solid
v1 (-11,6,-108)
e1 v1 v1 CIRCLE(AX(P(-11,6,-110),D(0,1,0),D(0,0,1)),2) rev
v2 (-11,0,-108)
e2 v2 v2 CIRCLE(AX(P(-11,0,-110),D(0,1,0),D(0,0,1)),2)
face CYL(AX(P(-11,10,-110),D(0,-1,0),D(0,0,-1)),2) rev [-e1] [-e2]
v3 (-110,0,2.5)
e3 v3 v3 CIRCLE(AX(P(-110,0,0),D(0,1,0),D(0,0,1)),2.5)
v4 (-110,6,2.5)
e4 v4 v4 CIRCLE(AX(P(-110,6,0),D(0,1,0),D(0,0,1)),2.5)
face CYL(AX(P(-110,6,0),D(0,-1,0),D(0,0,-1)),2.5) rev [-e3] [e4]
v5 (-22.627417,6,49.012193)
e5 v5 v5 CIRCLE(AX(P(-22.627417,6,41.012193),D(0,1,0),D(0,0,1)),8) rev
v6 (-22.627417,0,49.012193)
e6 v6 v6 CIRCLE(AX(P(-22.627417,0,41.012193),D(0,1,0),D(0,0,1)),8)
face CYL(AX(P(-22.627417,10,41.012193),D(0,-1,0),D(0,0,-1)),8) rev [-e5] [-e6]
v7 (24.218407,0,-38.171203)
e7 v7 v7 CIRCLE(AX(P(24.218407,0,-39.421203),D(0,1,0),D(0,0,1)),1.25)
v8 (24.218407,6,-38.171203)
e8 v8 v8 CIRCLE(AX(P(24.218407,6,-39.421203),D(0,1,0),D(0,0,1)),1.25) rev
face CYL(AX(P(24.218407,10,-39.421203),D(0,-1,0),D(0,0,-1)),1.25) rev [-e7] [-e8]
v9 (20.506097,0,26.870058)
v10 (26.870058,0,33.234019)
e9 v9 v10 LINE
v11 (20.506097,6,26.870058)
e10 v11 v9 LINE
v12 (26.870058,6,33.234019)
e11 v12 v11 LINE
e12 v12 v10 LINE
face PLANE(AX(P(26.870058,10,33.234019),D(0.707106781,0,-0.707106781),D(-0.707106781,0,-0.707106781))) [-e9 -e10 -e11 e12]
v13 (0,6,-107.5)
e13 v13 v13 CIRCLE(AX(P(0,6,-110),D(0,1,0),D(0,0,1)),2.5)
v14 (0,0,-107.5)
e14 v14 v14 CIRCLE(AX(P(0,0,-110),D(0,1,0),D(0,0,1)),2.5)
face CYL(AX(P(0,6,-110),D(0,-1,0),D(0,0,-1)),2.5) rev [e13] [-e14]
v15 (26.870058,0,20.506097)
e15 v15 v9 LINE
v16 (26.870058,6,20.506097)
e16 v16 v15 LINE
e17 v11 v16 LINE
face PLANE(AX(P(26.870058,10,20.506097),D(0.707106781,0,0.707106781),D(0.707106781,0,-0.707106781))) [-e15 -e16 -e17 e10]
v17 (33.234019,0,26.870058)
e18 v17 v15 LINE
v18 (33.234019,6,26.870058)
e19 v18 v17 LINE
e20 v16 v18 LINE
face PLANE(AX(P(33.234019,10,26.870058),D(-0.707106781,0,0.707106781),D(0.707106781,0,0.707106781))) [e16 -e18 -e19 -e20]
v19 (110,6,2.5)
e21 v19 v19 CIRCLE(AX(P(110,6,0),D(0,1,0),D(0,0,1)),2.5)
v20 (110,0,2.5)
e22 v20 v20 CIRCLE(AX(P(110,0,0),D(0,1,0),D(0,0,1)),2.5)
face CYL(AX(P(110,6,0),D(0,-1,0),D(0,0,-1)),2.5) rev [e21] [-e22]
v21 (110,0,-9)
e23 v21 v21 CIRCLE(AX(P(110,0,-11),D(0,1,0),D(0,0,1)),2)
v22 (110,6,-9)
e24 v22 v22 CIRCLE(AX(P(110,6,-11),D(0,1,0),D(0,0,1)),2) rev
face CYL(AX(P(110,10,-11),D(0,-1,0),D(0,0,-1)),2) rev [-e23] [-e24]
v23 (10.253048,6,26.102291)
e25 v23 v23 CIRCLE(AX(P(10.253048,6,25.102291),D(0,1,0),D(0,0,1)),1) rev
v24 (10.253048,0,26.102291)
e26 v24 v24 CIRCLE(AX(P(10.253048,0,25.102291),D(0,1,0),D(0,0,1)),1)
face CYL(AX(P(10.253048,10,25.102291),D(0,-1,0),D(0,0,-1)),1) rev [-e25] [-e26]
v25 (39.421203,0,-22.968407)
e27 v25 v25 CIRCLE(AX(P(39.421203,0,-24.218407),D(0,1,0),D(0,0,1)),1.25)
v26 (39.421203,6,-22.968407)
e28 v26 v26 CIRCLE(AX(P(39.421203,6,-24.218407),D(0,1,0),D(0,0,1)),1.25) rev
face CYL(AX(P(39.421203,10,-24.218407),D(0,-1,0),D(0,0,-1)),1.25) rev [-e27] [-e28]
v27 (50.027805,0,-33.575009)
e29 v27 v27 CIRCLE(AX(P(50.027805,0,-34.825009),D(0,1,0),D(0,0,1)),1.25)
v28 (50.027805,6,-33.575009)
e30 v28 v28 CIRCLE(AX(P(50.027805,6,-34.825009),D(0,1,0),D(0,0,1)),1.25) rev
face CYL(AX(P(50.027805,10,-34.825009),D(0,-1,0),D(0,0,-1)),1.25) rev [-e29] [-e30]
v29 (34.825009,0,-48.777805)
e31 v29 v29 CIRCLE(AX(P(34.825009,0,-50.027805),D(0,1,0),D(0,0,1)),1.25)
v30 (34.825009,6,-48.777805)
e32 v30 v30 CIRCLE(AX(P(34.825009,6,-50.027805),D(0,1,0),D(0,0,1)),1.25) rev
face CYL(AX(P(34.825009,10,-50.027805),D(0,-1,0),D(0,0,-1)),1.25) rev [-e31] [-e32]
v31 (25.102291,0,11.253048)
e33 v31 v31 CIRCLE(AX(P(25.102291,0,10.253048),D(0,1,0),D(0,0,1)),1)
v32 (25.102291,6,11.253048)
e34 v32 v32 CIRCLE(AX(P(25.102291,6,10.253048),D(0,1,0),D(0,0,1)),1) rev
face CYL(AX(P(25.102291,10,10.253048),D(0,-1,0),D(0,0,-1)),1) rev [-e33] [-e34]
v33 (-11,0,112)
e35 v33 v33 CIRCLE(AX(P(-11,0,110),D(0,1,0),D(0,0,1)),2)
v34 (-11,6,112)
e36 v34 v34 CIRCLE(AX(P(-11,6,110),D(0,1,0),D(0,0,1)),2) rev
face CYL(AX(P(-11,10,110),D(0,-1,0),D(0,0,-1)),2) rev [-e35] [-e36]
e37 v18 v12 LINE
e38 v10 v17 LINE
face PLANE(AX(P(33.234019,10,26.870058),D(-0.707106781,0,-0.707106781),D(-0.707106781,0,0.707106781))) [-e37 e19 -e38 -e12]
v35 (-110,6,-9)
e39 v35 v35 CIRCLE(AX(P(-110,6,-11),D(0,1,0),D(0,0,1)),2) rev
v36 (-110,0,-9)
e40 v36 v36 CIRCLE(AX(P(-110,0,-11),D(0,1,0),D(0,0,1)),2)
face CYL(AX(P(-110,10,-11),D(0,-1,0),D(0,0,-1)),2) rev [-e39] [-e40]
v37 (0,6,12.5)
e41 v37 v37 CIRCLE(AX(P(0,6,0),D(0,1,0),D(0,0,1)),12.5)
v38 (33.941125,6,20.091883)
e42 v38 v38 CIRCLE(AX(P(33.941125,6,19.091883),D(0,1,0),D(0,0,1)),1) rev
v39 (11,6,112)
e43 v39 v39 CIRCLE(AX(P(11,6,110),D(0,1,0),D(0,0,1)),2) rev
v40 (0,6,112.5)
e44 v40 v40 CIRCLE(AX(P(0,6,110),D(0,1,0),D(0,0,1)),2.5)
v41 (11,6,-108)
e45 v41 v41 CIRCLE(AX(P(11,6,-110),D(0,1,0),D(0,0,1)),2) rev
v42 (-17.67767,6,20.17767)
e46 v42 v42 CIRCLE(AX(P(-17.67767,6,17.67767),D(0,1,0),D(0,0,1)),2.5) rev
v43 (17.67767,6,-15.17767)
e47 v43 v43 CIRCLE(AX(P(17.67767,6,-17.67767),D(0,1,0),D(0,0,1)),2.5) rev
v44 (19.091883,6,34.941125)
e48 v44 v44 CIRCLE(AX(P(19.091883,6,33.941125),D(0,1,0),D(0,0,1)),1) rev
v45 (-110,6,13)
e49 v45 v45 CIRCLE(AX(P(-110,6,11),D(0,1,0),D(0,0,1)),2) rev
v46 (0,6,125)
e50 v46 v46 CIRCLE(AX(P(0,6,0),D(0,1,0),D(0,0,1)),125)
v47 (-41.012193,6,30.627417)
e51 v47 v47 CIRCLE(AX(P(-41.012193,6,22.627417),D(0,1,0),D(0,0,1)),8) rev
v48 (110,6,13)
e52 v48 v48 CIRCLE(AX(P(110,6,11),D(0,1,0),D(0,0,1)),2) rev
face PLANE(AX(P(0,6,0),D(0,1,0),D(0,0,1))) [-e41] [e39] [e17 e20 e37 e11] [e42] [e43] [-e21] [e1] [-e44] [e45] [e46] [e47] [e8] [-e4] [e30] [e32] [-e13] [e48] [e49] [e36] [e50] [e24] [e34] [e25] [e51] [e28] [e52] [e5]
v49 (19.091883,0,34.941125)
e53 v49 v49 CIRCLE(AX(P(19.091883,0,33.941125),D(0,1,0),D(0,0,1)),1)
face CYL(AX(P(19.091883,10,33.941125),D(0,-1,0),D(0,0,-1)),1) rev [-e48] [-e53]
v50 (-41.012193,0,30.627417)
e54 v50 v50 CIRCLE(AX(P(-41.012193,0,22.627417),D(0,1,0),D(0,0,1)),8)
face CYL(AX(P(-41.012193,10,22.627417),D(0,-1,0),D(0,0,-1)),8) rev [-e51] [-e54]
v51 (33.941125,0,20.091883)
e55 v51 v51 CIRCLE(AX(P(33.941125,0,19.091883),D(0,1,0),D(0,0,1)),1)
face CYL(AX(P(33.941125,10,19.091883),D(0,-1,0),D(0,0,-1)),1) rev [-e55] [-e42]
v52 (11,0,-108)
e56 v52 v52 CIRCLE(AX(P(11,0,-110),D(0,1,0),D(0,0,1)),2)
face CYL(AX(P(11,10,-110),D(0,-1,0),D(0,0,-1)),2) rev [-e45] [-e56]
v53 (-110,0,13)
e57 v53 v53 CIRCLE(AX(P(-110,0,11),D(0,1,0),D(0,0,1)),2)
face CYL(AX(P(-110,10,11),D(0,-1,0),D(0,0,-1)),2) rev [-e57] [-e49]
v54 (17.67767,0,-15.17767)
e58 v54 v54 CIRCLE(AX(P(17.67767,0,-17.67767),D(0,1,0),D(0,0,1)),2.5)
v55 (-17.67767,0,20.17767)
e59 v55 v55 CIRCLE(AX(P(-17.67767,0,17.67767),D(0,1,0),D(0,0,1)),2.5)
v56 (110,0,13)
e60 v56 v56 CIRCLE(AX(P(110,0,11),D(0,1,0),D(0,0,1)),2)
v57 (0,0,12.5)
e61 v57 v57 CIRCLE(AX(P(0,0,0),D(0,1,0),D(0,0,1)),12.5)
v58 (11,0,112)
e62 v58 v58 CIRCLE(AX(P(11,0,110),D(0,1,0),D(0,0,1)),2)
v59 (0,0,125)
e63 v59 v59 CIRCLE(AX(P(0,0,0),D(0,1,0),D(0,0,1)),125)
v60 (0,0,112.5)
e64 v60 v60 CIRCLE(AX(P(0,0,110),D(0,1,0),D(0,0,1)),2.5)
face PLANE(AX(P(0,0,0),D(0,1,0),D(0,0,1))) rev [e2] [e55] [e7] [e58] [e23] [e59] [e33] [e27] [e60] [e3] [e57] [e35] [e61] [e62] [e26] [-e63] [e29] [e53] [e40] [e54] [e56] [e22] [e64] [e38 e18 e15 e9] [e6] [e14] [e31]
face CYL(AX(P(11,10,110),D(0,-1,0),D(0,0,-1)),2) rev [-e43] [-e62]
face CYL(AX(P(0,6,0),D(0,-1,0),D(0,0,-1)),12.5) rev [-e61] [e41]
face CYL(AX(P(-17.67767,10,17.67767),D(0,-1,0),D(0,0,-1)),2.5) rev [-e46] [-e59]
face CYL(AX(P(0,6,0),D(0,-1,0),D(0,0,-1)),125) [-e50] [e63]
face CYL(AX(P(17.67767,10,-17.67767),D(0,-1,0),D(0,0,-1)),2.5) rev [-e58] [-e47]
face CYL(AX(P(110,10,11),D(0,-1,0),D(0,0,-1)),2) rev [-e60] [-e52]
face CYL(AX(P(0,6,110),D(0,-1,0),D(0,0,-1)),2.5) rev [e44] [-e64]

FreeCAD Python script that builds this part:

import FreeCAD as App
import Part
import Sketcher
from FreeCAD import Vector

doc = App.newDocument("Part")
body = doc.addObject("PartDesign::Body", "Body")

# Sketch on XZ plane
sketch1 = body.newObject("Sketcher::SketchObject", "Sketch")
sketch1.AttachmentSupport = (doc.getObject("XZ_Plane"), [""])
sketch1.MapMode = "FlatFace"
sketch1.addGeometry(Part.Circle(Vector(0, 0, 0), Vector(0, 0, 1), 125), False)
sketch1.addConstraint([
    Sketcher.Constraint("Coincident", 0, 3, -1, 1),
    Sketcher.Constraint("Diameter", 0, 250.0),
])
pad1 = body.newObject("PartDesign::Pad", "Pad")
pad1.Profile = sketch1
pad1.Length = 6
pad1.Reversed = True

# Sketch on XZ plane
sketch2 = body.newObject("Sketcher::SketchObject", "Sketch001")
sketch2.AttachmentSupport = (doc.getObject("XZ_Plane"), [""])
sketch2.MapMode = "FlatFace"
sketch2.addGeometry([
    Part.Circle(Vector(0, -110, 0), Vector(0, 0, 1), 2.5),
    Part.Circle(Vector(110, 0, 0), Vector(0, 0, 1), 2.5),
    Part.Circle(Vector(0, 110, 0), Vector(0, 0, 1), 2.5),
    Part.Circle(Vector(-110, 0, 0), Vector(0, 0, 1), 2.5),
], False)
sketch2.addConstraint([
    Sketcher.Constraint("Equal", 0, 1),
    Sketcher.Constraint("Equal", 1, 2),
    Sketcher.Constraint("Equal", 2, 3),
    Sketcher.Constraint("Symmetric", 0, 3, 2, 3, -1, 1),
    Sketcher.Constraint("Symmetric", 1, 3, 3, 3, -1, 1),
    Sketcher.Constraint("PointOnObject", 0, 3, -2),
    Sketcher.Constraint("PointOnObject", 1, 3, -1),
    Sketcher.Constraint("Diameter", 0, 5.0),
    Sketcher.Constraint("DistanceY", 0, 3, -1, 1, 110.0),
    Sketcher.Constraint("DistanceX", -1, 1, 1, 3, 110.0),
])
pocket1 = body.newObject("PartDesign::Pocket", "Pocket")
pocket1.Profile = sketch2
pocket1.Length = 6

# Sketch on XZ plane
sketch3 = body.newObject("Sketcher::SketchObject", "Sketch002")
sketch3.AttachmentSupport = (doc.getObject("XZ_Plane"), [""])
sketch3.MapMode = "FlatFace"
sketch3.addGeometry(Part.Circle(Vector(0, 0, 0), Vector(0, 0, 1), 12), False)
sketch3.addConstraint([
    Sketcher.Constraint("Coincident", 0, 3, -1, 1),
    Sketcher.Constraint("Diameter", 0, 25.0),
])
pocket2 = body.newObject("PartDesign::Pocket", "Pocket001")
pocket2.Profile = sketch3
pocket2.Length = 6

# Sketch on XZ plane
sketch4 = body.newObject("Sketcher::SketchObject", "Sketch003")
sketch4.AttachmentSupport = (doc.getObject("XZ_Plane"), [""])
sketch4.MapMode = "FlatFace"
sketch4.addGeometry([
    Part.Circle(Vector(17.7, -17.7, 0), Vector(0, 0, 1), 2.5),
    Part.Circle(Vector(-17.7, 17.7, 0), Vector(0, 0, 1), 2.5),
], False)
sketch4.addConstraint([
    Sketcher.Constraint("Equal", 0, 1),
    Sketcher.Constraint("Symmetric", 0, 3, 1, 3, -1, 1),
    Sketcher.Constraint("Diameter", 0, 5.0),
    Sketcher.Constraint("DistanceX", -1, 1, 0, 3, 17.67767),
    Sketcher.Constraint("DistanceY", 0, 3, -1, 1, 17.67767),
])
pocket3 = body.newObject("PartDesign::Pocket", "Pocket002")
pocket3.Profile = sketch4
pocket3.Length = 10

# Sketch on XZ plane
sketch5 = body.newObject("Sketcher::SketchObject", "Sketch004")
sketch5.AttachmentSupport = (doc.getObject("XZ_Plane"), [""])
sketch5.MapMode = "FlatFace"
sketch5.addGeometry([
    Part.Circle(Vector(33.9, 19.1, 0), Vector(0, 0, 1), 1),  # 0
    Part.Circle(Vector(19.1, 33.9, 0), Vector(0, 0, 1), 1),  # 1
    Part.Circle(Vector(25.1, 10.3, 0), Vector(0, 0, 1), 1),  # 2
    Part.Circle(Vector(10.3, 25.1, 0), Vector(0, 0, 1), 1),  # 3
    Part.LineSegment(Vector(26.9, 33.2, 0), Vector(33.2, 26.9, 0)),  # 4
    Part.LineSegment(Vector(33.2, 26.9, 0), Vector(26.9, 20.5, 0)),  # 5
    Part.LineSegment(Vector(26.9, 20.5, 0), Vector(20.5, 26.9, 0)),  # 6
    Part.LineSegment(Vector(20.5, 26.9, 0), Vector(26.9, 33.2, 0)),  # 7
], False)
sketch5.addConstraint([
    Sketcher.Constraint("Coincident", 4, 2, 5, 1),
    Sketcher.Constraint("Coincident", 5, 2, 6, 1),
    Sketcher.Constraint("Coincident", 6, 2, 7, 1),
    Sketcher.Constraint("Coincident", 7, 2, 4, 1),
    Sketcher.Constraint("Equal", 0, 1),
    Sketcher.Constraint("Equal", 1, 2),
    Sketcher.Constraint("Equal", 2, 3),
    Sketcher.Constraint("Perpendicular", 4, 5),
    Sketcher.Constraint("Perpendicular", 5, 6),
    Sketcher.Constraint("Perpendicular", 6, 7),
    Sketcher.Constraint("Horizontal", 4, 2, 6, 2),
    Sketcher.Constraint("Vertical", 5, 2, 7, 2),
    Sketcher.Constraint("Diameter", 0, 2.0),
    Sketcher.Constraint("Distance", 4, 9.0),
    Sketcher.Constraint("DistanceX", -1, 1, 2, 3, 25.102291),
    Sketcher.Constraint("DistanceY", -1, 1, 2, 3, 10.253048),
    Sketcher.Constraint("DistanceX", -1, 1, 3, 3, 10.253048),
    Sketcher.Constraint("DistanceY", -1, 1, 3, 3, 25.102291),
    Sketcher.Constraint("DistanceX", -1, 1, 4, 2, 33.234019),
    Sketcher.Constraint("DistanceY", -1, 1, 7, 2, 33.234019),
    Sketcher.Constraint("DistanceY", 5, 2, 1, 3, 13.435029),
    Sketcher.Constraint("DistanceX", 6, 2, 0, 3, 13.435029),
    Sketcher.Constraint("DistanceY", -1, 1, 0, 3, 19.091883),
    Sketcher.Constraint("DistanceX", -1, 1, 1, 3, 19.091883),
])
pocket4 = body.newObject("PartDesign::Pocket", "Pocket003")
pocket4.Profile = sketch5
pocket4.Length = 10

# Sketch on XZ plane
sketch6 = body.newObject("Sketcher::SketchObject", "Sketch005")
sketch6.AttachmentSupport = (doc.getObject("XZ_Plane"), [""])
sketch6.MapMode = "FlatFace"
sketch6.addGeometry([
    Part.Circle(Vector(-11, 110, 0), Vector(0, 0, 1), 2),  # 0
    Part.Circle(Vector(11, 110, 0), Vector(0, 0, 1), 2),  # 1
    Part.Circle(Vector(-110, -11, 0), Vector(0, 0, 1), 2),  # 2
    Part.Circle(Vector(-110, 11, 0), Vector(0, 0, 1), 2),  # 3
    Part.Circle(Vector(11, -110, 0), Vector(0, 0, 1), 2),  # 4
    Part.Circle(Vector(-11, -110, 0), Vector(0, 0, 1), 2),  # 5
    Part.Circle(Vector(110, 11, 0), Vector(0, 0, 1), 2),  # 6
    Part.Circle(Vector(110, -11, 0), Vector(0, 0, 1), 2),  # 7
], False)
sketch6.addConstraint([
    Sketcher.Constraint("Equal", 0, 1),
    Sketcher.Constraint("Equal", 1, 2),
    Sketcher.Constraint("Equal", 2, 3),
    Sketcher.Constraint("Equal", 3, 4),
    Sketcher.Constraint("Equal", 4, 5),
    Sketcher.Constraint("Equal", 5, 6),
    Sketcher.Constraint("Equal", 6, 7),
    Sketcher.Constraint("Symmetric", 0, 3, 4, 3, -1, 1),
    Sketcher.Constraint("Symmetric", 1, 3, 5, 3, -1, 1),
    Sketcher.Constraint("Symmetric", 2, 3, 6, 3, -1, 1),
    Sketcher.Constraint("Symmetric", 3, 3, 7, 3, -1, 1),
    Sketcher.Constraint("Symmetric", 0, 3, 1, 3, -2),
    Sketcher.Constraint("Symmetric", 3, 3, 6, 3, -2),
    Sketcher.Constraint("Diameter", 0, 4.0),
    Sketcher.Constraint("DistanceX", 0, 3, -1, 1, 11.0),
    Sketcher.Constraint("DistanceY", -1, 1, 0, 3, 110.0),
    Sketcher.Constraint("DistanceX", 2, 3, -1, 1, 110.0),
    Sketcher.Constraint("DistanceY", 2, 3, -1, 1, 11.0),
])
pocket5 = body.newObject("PartDesign::Pocket", "Pocket004")
pocket5.Profile = sketch6
pocket5.Length = 10

# Sketch on XZ plane
sketch7 = body.newObject("Sketcher::SketchObject", "Sketch006")
sketch7.AttachmentSupport = (doc.getObject("XZ_Plane"), [""])
sketch7.MapMode = "FlatFace"
sketch7.addGeometry([
    Part.Circle(Vector(34.8, -50, 0), Vector(0, 0, 1), 1.2),
    Part.Circle(Vector(24.2, -39.4, 0), Vector(0, 0, 1), 1.2),
    Part.Circle(Vector(39.4, -24.2, 0), Vector(0, 0, 1), 1.2),
    Part.Circle(Vector(50, -34.8, 0), Vector(0, 0, 1), 1.2),
], False)
sketch7.addConstraint([
    Sketcher.Constraint("Equal", 0, 1),
    Sketcher.Constraint("Equal", 1, 2),
    Sketcher.Constraint("Equal", 2, 3),
    Sketcher.Constraint("Diameter", 0, 2.5),
    Sketcher.Constraint("DistanceX", 1, 3, 0, 3, 10.606602),
    Sketcher.Constraint("DistanceY", 0, 3, 1, 3, 10.606602),
    Sketcher.Constraint("DistanceX", 2, 3, 3, 3, 10.606602),
    Sketcher.Constraint("DistanceY", 3, 3, 2, 3, 10.606602),
    Sketcher.Constraint("DistanceX", -1, 1, 0, 3, 34.825009),
    Sketcher.Constraint("DistanceY", 3, 3, -1, 1, 34.825009),
    Sketcher.Constraint("DistanceY", 0, 3, -1, 1, 50.027805),
    Sketcher.Constraint("DistanceX", -1, 1, 2, 3, 39.421203),
])
pocket6 = body.newObject("PartDesign::Pocket", "Pocket005")
pocket6.Profile = sketch7
pocket6.Length = 10

# Sketch on XZ plane
sketch8 = body.newObject("Sketcher::SketchObject", "Sketch007")
sketch8.AttachmentSupport = (doc.getObject("XZ_Plane"), [""])
sketch8.MapMode = "FlatFace"
sketch8.addGeometry([
    Part.Circle(Vector(-23, 41, 0), Vector(0, 0, 1), 8),
    Part.Circle(Vector(-41, 23, 0), Vector(0, 0, 1), 8),
], False)
sketch8.addConstraint([
    Sketcher.Constraint("Equal", 0, 1),
    Sketcher.Constraint("Diameter", 0, 16.0),
    Sketcher.Constraint("DistanceX", 0, 3, -1, 1, 22.627417),
    Sketcher.Constraint("DistanceY", -1, 1, 0, 3, 41.012193),
    Sketcher.Constraint("DistanceX", 1, 3, -1, 1, 41.012193),
    Sketcher.Constraint("DistanceY", -1, 1, 1, 3, 22.627417),
])
pocket7 = body.newObject("PartDesign::Pocket", "Pocket006")
pocket7.Profile = sketch8
pocket7.Length = 10

doc.recompute()
